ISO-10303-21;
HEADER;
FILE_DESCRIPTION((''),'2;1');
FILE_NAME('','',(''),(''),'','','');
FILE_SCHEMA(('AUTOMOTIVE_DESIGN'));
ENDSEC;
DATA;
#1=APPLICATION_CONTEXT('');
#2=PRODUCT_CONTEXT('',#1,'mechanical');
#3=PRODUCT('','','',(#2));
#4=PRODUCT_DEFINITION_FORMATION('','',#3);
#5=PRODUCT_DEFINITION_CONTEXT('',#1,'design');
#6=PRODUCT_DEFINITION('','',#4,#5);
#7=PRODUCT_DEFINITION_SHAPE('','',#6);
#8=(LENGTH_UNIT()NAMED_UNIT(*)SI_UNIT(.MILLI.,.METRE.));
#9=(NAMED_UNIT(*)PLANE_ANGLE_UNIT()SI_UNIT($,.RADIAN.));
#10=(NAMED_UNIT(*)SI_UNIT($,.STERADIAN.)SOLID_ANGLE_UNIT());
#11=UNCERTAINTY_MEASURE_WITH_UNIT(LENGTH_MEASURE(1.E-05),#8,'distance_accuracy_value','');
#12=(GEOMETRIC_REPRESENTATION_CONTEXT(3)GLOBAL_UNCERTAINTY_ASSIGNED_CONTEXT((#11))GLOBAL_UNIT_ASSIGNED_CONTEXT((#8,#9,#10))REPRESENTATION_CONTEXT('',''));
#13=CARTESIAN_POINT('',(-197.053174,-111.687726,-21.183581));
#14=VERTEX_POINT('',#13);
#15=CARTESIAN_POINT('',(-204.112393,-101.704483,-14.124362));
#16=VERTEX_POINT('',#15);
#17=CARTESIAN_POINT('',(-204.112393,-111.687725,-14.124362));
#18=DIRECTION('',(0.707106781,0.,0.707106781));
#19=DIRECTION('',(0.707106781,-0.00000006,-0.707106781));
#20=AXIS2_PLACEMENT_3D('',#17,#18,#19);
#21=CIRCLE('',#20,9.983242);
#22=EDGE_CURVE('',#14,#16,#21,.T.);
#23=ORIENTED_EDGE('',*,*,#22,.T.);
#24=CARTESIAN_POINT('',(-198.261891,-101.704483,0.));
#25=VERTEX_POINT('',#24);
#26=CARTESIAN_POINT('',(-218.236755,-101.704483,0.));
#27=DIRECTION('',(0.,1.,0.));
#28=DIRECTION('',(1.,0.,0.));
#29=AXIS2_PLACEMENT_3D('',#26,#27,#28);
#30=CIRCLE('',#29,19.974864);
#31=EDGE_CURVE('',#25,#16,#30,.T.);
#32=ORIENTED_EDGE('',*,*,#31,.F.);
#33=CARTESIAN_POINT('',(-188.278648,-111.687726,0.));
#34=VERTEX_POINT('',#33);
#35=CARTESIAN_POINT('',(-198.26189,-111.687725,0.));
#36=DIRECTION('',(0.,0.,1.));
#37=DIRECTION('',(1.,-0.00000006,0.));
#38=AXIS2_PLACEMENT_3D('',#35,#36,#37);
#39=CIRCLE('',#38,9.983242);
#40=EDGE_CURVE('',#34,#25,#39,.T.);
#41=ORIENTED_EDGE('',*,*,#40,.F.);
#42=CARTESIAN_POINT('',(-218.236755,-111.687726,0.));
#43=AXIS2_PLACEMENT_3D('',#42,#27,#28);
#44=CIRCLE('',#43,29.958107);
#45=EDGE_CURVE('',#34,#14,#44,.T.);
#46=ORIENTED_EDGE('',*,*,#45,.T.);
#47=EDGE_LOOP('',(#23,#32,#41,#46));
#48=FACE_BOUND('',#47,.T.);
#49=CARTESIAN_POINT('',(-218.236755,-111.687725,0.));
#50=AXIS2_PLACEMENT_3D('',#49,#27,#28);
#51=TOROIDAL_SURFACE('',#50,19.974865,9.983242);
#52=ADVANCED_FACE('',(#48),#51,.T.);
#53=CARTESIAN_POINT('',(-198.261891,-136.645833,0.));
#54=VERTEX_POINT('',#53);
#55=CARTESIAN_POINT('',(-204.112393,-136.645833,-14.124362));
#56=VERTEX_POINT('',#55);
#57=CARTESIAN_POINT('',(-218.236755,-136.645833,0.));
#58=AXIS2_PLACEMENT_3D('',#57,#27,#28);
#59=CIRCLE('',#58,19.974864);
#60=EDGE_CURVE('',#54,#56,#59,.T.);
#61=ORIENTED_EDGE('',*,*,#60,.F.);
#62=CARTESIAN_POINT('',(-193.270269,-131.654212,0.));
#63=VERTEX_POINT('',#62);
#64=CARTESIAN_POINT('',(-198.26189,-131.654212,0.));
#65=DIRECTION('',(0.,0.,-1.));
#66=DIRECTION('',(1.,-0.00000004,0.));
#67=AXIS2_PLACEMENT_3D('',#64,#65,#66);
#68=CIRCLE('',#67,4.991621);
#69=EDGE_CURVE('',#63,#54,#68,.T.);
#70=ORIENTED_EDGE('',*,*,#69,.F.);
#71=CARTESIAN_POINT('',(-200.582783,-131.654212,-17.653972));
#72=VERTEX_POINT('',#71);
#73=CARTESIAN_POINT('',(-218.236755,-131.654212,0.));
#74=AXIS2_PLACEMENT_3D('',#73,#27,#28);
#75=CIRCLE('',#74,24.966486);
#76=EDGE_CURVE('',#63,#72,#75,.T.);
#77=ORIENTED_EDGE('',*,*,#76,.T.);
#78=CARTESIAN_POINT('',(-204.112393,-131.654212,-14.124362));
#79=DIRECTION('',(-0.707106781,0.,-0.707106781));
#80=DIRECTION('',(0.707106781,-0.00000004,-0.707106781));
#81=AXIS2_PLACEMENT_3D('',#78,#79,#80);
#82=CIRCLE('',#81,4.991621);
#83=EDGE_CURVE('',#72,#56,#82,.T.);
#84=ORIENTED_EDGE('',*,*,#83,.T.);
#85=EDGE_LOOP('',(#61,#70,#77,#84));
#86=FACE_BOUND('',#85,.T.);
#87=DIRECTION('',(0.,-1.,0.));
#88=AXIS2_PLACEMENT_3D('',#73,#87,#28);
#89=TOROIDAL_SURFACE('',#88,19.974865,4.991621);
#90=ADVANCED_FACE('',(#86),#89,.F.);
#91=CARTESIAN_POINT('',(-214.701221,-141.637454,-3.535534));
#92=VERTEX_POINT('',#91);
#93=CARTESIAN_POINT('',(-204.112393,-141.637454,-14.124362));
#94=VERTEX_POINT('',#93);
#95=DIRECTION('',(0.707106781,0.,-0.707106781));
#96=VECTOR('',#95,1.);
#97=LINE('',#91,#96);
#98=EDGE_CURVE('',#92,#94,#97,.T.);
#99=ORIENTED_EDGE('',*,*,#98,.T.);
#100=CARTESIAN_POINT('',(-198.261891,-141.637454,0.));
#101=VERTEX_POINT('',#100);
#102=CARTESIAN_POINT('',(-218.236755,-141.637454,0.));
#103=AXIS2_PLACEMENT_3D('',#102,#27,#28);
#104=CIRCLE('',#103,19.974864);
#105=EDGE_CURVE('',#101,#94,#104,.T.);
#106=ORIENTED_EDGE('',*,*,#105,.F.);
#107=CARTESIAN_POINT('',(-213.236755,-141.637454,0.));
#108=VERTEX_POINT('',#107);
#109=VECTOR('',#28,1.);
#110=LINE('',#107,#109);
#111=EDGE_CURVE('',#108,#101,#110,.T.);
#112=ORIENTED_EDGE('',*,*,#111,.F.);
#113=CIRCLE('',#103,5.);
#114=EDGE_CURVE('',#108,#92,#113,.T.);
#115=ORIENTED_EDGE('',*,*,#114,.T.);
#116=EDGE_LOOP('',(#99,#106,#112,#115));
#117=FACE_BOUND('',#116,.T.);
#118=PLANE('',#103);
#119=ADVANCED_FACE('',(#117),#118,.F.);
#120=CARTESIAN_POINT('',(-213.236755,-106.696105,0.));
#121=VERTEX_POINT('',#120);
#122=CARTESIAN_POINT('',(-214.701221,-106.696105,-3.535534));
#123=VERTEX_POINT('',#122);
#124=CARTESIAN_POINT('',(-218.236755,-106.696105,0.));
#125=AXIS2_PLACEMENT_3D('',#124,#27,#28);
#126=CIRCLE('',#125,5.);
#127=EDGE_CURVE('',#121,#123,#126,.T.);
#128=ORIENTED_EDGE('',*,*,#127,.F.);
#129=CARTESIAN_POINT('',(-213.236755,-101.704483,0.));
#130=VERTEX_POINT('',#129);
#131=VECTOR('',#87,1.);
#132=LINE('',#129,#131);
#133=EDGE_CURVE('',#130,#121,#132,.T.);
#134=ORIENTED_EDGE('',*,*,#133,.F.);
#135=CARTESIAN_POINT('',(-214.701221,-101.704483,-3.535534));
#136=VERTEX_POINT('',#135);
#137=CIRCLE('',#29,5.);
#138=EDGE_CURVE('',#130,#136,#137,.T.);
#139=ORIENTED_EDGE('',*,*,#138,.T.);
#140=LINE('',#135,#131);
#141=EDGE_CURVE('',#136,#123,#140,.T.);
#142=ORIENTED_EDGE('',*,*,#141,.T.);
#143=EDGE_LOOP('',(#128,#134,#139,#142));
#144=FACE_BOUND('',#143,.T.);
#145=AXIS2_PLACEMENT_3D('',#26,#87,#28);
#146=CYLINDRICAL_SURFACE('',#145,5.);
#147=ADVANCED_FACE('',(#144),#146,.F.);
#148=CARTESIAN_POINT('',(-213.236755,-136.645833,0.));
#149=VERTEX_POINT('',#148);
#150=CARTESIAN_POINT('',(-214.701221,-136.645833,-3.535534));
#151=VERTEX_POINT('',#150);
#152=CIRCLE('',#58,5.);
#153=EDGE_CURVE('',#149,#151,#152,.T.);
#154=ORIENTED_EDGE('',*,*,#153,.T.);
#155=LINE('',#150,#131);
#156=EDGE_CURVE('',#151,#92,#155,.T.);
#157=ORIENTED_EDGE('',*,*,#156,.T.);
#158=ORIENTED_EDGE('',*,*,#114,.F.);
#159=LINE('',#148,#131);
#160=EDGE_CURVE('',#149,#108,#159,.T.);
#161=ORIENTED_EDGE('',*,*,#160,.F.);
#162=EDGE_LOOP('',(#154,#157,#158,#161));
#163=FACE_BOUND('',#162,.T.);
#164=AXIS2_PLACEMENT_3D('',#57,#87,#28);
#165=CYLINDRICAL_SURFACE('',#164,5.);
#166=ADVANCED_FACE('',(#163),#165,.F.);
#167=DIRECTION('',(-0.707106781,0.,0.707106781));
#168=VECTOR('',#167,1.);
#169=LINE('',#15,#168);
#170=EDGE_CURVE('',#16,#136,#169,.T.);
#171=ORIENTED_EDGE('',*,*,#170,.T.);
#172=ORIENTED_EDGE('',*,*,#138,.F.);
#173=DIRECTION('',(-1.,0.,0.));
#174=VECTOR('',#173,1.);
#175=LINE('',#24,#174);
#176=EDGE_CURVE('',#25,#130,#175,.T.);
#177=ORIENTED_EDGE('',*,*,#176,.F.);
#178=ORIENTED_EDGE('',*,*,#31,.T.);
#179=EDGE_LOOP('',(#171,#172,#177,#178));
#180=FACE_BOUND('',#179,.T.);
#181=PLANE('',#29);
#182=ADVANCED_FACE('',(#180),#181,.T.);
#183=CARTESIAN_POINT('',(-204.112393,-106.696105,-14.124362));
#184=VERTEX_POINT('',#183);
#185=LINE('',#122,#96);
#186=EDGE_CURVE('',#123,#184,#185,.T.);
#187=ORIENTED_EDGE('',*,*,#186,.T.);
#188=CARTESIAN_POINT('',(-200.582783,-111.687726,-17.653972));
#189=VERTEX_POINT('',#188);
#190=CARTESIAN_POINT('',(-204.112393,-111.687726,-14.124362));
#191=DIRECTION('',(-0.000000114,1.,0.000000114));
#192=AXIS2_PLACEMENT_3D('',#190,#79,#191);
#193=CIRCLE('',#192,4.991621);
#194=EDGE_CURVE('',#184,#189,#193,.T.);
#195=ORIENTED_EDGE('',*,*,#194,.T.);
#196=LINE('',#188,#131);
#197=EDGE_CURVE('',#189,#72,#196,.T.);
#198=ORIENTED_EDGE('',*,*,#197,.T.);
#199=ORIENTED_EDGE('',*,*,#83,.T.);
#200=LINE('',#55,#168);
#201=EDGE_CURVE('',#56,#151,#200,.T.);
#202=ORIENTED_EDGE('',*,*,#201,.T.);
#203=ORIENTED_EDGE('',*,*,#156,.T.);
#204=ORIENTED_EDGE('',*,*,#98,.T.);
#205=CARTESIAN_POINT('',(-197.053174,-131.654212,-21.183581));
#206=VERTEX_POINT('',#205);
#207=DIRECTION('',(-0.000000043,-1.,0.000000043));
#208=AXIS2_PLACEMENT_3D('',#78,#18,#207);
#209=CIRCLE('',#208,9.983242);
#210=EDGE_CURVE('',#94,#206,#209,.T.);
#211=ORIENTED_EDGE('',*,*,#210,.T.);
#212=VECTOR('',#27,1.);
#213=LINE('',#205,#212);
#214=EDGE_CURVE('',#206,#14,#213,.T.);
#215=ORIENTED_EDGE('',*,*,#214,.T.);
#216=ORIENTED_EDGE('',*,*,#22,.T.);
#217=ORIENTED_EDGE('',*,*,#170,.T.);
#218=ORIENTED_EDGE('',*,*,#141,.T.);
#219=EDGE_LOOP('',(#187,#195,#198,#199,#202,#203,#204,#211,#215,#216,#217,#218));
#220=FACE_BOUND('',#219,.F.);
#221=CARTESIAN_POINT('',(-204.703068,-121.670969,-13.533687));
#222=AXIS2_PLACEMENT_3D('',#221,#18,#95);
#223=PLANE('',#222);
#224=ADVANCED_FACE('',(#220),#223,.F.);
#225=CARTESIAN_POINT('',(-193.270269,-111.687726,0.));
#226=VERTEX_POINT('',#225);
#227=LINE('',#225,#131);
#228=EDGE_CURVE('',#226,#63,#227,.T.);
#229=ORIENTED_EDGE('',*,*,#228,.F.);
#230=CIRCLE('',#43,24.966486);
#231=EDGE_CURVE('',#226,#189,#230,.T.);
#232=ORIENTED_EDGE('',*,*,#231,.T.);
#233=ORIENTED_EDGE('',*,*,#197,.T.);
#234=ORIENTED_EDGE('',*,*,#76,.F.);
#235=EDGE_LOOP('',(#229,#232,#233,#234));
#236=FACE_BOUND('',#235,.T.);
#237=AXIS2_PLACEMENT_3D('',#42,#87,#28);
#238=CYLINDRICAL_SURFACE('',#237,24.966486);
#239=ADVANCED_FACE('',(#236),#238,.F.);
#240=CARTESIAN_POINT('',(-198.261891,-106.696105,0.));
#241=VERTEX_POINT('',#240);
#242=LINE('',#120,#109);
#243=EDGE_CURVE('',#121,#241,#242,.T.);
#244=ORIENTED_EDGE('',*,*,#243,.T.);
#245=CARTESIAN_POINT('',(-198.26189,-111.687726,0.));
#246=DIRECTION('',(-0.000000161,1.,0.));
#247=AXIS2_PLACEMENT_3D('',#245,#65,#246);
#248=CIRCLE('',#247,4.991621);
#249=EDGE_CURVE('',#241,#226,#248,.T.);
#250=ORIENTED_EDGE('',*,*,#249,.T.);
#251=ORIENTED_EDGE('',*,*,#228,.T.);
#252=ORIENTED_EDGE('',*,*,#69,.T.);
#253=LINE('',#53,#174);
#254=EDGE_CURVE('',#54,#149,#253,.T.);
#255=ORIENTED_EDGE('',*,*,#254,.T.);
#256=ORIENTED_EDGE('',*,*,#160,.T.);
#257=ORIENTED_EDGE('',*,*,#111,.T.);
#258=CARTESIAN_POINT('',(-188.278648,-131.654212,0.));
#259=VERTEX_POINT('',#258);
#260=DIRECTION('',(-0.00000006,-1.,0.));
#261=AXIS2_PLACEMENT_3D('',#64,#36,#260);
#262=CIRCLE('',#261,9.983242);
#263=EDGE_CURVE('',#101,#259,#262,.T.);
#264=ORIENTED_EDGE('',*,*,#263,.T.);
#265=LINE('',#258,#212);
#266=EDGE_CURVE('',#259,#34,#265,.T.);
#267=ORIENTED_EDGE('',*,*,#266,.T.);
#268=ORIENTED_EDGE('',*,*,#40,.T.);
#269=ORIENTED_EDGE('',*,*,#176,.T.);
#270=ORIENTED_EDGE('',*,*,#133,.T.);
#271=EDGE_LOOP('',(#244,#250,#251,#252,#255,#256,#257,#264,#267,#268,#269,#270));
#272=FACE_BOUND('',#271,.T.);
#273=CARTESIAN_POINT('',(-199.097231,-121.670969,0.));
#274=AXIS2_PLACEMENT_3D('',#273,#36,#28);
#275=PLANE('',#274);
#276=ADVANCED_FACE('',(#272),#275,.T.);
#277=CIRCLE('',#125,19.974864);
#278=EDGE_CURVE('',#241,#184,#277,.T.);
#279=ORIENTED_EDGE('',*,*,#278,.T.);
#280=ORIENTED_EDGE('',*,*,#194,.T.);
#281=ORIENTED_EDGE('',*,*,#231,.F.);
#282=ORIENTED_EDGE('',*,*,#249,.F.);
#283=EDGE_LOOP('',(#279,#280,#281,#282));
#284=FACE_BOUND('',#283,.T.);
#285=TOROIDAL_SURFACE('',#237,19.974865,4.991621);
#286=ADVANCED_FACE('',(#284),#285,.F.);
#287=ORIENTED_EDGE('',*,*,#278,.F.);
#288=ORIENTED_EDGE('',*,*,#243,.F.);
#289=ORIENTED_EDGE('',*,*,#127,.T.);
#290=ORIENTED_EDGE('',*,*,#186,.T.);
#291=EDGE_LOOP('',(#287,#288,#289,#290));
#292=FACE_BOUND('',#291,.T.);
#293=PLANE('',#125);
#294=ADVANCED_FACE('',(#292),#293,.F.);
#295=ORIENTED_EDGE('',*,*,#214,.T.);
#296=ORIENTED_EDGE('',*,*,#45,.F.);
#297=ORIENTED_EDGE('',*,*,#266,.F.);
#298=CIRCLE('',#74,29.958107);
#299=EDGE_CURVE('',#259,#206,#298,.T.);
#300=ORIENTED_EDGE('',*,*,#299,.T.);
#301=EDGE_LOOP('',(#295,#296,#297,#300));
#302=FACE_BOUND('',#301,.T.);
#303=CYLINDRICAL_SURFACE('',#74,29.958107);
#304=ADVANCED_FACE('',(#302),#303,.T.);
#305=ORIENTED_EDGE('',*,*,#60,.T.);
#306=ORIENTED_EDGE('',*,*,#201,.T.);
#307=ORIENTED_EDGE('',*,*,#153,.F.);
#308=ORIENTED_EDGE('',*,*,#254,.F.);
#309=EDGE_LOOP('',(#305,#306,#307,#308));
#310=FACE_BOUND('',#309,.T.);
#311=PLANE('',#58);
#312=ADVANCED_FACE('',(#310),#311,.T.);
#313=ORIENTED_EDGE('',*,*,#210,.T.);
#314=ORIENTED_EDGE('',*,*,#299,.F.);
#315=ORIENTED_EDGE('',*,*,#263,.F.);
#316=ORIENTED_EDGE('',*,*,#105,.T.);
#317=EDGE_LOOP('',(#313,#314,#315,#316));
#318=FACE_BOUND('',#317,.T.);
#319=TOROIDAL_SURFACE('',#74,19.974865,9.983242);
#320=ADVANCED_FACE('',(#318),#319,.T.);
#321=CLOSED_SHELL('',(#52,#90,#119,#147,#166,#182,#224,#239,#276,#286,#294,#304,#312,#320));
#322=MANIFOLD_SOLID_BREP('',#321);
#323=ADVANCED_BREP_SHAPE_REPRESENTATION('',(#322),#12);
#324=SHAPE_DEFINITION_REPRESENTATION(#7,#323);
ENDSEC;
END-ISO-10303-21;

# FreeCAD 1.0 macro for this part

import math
import FreeCAD as App
import Part
import Sketcher

V = App.Vector

doc = App.newDocument("Part")
params = doc.addObject("Spreadsheet::Sheet", "Params")
for row, (alias, value) in enumerate([
    ("revolution_angle", "45 deg"),
], start=1):
    params.set(f"A{row}", alias)
    params.set(f"B{row}", "=" + value)
    params.setAlias(f"B{row}", alias)

body = doc.addObject("PartDesign::Body", "Body")

# Sketch on XY plane
sketch1 = body.newObject("Sketcher::SketchObject", "Sketch")
sketch1.AttachmentSupport = (doc.getObject("XY_Plane"), [""])
sketch1.MapMode = "FlatFace"
sketch1.addGeometry(Part.LineSegment(V(-213.2, -106.7, 0), V(-198.3, -106.7, 0)), False)
sketch1.addGeometry(Part.ArcOfCircle(Part.Circle(V(-198.3, -111.7, 0), V(0, 0, 1), 5), math.radians(0), math.radians(90)), False)
sketch1.addGeometry(Part.LineSegment(V(-193.3, -111.7, 0), V(-193.3, -131.7, 0)), False)
sketch1.addGeometry(Part.ArcOfCircle(Part.Circle(V(-198.3, -131.7, 0), V(0, 0, 1), 5), math.radians(-90), math.radians(0)), False)
sketch1.addGeometry(Part.LineSegment(V(-198.3, -136.6, 0), V(-213.2, -136.6, 0)), False)
sketch1.addGeometry(Part.LineSegment(V(-213.2, -136.6, 0), V(-213.2, -141.6, 0)), False)
sketch1.addGeometry(Part.LineSegment(V(-213.2, -141.6, 0), V(-198.3, -141.6, 0)), False)
sketch1.addGeometry(Part.ArcOfCircle(Part.Circle(V(-198.3, -131.7, 0), V(0, 0, 1), 10), math.radians(-90), math.radians(0)), False)
sketch1.addGeometry(Part.LineSegment(V(-188.3, -131.7, 0), V(-188.3, -111.7, 0)), False)
sketch1.addGeometry(Part.ArcOfCircle(Part.Circle(V(-198.3, -111.7, 0), V(0, 0, 1), 10), math.radians(0), math.radians(90)), False)
sketch1.addGeometry(Part.LineSegment(V(-198.3, -101.7, 0), V(-213.2, -101.7, 0)), False)
sketch1.addGeometry(Part.LineSegment(V(-213.2, -101.7, 0), V(-213.2, -106.7, 0)), False)
sketch1.addGeometry(Part.LineSegment(V(-218.2, -141.6, 0), V(-218.2, -101.7, 0)), True)  # axis
sketch1.addConstraint(Sketcher.Constraint("Tangent", 0, 2, 1, 2))
sketch1.addConstraint(Sketcher.Constraint("Tangent", 1, 1, 2, 1))
sketch1.addConstraint(Sketcher.Constraint("Tangent", 2, 2, 3, 2))
sketch1.addConstraint(Sketcher.Constraint("Tangent", 3, 1, 4, 1))
sketch1.addConstraint(Sketcher.Constraint("Coincident", 4, 2, 5, 1))
sketch1.addConstraint(Sketcher.Constraint("Coincident", 5, 2, 6, 1))
sketch1.addConstraint(Sketcher.Constraint("Tangent", 6, 2, 7, 1))
sketch1.addConstraint(Sketcher.Constraint("Tangent", 7, 2, 8, 1))
sketch1.addConstraint(Sketcher.Constraint("Tangent", 8, 2, 9, 1))
sketch1.addConstraint(Sketcher.Constraint("Tangent", 9, 2, 10, 1))
sketch1.addConstraint(Sketcher.Constraint("Coincident", 10, 2, 11, 1))
sketch1.addConstraint(Sketcher.Constraint("Coincident", 11, 2, 0, 1))
sketch1.addConstraint(Sketcher.Constraint("Horizontal", 0))
sketch1.addConstraint(Sketcher.Constraint("Vertical", 2))
sketch1.addConstraint(Sketcher.Constraint("Horizontal", 4))
sketch1.addConstraint(Sketcher.Constraint("Vertical", 5))
sketch1.addConstraint(Sketcher.Constraint("Horizontal", 6))
sketch1.addConstraint(Sketcher.Constraint("Vertical", 8))
sketch1.addConstraint(Sketcher.Constraint("Horizontal", 10))
sketch1.addConstraint(Sketcher.Constraint("Vertical", 11))
sketch1.addConstraint(Sketcher.Constraint("Vertical", 12))
sketch1.addConstraint(Sketcher.Constraint("Coincident", 7, 3, 3, 3))
sketch1.addConstraint(Sketcher.Constraint("Coincident", 9, 3, 1, 3))
sketch1.addConstraint(Sketcher.Constraint("Equal", 1, 3))
sketch1.addConstraint(Sketcher.Constraint("Horizontal", 6, 2, 12, 1))
sketch1.addConstraint(Sketcher.Constraint("Horizontal", 10, 2, 12, 2))
sketch1.addConstraint(Sketcher.Constraint("Vertical", 5, 2, 10, 2))
sketch1.addConstraint(Sketcher.Constraint("DistanceX", 12, 1, 5, 2, 5.0))
sketch1.addConstraint(Sketcher.Constraint("Radius", 1, 4.991621))
sketch1.addConstraint(Sketcher.Constraint("Radius", 7, 9.983242))
sketch1.addConstraint(Sketcher.Constraint("DistanceY", 12, 1, 12, 2, 39.932971))
sketch1.addConstraint(Sketcher.Constraint("DistanceX", 0, 1, 0, 2, 14.974864))
sketch1.addConstraint(Sketcher.Constraint("DistanceX", 1, 3, -1, 1, 198.26189))
sketch1.addConstraint(Sketcher.Constraint("DistanceY", 3, 3, -1, 1, 131.654212))
revolution = body.newObject("PartDesign::Revolution", "Revolution")
revolution.Profile = sketch1
revolution.ReferenceAxis = (sketch1, ["Axis0"])
revolution.setExpression("Angle", "Params.revolution_angle")

doc.recompute()
